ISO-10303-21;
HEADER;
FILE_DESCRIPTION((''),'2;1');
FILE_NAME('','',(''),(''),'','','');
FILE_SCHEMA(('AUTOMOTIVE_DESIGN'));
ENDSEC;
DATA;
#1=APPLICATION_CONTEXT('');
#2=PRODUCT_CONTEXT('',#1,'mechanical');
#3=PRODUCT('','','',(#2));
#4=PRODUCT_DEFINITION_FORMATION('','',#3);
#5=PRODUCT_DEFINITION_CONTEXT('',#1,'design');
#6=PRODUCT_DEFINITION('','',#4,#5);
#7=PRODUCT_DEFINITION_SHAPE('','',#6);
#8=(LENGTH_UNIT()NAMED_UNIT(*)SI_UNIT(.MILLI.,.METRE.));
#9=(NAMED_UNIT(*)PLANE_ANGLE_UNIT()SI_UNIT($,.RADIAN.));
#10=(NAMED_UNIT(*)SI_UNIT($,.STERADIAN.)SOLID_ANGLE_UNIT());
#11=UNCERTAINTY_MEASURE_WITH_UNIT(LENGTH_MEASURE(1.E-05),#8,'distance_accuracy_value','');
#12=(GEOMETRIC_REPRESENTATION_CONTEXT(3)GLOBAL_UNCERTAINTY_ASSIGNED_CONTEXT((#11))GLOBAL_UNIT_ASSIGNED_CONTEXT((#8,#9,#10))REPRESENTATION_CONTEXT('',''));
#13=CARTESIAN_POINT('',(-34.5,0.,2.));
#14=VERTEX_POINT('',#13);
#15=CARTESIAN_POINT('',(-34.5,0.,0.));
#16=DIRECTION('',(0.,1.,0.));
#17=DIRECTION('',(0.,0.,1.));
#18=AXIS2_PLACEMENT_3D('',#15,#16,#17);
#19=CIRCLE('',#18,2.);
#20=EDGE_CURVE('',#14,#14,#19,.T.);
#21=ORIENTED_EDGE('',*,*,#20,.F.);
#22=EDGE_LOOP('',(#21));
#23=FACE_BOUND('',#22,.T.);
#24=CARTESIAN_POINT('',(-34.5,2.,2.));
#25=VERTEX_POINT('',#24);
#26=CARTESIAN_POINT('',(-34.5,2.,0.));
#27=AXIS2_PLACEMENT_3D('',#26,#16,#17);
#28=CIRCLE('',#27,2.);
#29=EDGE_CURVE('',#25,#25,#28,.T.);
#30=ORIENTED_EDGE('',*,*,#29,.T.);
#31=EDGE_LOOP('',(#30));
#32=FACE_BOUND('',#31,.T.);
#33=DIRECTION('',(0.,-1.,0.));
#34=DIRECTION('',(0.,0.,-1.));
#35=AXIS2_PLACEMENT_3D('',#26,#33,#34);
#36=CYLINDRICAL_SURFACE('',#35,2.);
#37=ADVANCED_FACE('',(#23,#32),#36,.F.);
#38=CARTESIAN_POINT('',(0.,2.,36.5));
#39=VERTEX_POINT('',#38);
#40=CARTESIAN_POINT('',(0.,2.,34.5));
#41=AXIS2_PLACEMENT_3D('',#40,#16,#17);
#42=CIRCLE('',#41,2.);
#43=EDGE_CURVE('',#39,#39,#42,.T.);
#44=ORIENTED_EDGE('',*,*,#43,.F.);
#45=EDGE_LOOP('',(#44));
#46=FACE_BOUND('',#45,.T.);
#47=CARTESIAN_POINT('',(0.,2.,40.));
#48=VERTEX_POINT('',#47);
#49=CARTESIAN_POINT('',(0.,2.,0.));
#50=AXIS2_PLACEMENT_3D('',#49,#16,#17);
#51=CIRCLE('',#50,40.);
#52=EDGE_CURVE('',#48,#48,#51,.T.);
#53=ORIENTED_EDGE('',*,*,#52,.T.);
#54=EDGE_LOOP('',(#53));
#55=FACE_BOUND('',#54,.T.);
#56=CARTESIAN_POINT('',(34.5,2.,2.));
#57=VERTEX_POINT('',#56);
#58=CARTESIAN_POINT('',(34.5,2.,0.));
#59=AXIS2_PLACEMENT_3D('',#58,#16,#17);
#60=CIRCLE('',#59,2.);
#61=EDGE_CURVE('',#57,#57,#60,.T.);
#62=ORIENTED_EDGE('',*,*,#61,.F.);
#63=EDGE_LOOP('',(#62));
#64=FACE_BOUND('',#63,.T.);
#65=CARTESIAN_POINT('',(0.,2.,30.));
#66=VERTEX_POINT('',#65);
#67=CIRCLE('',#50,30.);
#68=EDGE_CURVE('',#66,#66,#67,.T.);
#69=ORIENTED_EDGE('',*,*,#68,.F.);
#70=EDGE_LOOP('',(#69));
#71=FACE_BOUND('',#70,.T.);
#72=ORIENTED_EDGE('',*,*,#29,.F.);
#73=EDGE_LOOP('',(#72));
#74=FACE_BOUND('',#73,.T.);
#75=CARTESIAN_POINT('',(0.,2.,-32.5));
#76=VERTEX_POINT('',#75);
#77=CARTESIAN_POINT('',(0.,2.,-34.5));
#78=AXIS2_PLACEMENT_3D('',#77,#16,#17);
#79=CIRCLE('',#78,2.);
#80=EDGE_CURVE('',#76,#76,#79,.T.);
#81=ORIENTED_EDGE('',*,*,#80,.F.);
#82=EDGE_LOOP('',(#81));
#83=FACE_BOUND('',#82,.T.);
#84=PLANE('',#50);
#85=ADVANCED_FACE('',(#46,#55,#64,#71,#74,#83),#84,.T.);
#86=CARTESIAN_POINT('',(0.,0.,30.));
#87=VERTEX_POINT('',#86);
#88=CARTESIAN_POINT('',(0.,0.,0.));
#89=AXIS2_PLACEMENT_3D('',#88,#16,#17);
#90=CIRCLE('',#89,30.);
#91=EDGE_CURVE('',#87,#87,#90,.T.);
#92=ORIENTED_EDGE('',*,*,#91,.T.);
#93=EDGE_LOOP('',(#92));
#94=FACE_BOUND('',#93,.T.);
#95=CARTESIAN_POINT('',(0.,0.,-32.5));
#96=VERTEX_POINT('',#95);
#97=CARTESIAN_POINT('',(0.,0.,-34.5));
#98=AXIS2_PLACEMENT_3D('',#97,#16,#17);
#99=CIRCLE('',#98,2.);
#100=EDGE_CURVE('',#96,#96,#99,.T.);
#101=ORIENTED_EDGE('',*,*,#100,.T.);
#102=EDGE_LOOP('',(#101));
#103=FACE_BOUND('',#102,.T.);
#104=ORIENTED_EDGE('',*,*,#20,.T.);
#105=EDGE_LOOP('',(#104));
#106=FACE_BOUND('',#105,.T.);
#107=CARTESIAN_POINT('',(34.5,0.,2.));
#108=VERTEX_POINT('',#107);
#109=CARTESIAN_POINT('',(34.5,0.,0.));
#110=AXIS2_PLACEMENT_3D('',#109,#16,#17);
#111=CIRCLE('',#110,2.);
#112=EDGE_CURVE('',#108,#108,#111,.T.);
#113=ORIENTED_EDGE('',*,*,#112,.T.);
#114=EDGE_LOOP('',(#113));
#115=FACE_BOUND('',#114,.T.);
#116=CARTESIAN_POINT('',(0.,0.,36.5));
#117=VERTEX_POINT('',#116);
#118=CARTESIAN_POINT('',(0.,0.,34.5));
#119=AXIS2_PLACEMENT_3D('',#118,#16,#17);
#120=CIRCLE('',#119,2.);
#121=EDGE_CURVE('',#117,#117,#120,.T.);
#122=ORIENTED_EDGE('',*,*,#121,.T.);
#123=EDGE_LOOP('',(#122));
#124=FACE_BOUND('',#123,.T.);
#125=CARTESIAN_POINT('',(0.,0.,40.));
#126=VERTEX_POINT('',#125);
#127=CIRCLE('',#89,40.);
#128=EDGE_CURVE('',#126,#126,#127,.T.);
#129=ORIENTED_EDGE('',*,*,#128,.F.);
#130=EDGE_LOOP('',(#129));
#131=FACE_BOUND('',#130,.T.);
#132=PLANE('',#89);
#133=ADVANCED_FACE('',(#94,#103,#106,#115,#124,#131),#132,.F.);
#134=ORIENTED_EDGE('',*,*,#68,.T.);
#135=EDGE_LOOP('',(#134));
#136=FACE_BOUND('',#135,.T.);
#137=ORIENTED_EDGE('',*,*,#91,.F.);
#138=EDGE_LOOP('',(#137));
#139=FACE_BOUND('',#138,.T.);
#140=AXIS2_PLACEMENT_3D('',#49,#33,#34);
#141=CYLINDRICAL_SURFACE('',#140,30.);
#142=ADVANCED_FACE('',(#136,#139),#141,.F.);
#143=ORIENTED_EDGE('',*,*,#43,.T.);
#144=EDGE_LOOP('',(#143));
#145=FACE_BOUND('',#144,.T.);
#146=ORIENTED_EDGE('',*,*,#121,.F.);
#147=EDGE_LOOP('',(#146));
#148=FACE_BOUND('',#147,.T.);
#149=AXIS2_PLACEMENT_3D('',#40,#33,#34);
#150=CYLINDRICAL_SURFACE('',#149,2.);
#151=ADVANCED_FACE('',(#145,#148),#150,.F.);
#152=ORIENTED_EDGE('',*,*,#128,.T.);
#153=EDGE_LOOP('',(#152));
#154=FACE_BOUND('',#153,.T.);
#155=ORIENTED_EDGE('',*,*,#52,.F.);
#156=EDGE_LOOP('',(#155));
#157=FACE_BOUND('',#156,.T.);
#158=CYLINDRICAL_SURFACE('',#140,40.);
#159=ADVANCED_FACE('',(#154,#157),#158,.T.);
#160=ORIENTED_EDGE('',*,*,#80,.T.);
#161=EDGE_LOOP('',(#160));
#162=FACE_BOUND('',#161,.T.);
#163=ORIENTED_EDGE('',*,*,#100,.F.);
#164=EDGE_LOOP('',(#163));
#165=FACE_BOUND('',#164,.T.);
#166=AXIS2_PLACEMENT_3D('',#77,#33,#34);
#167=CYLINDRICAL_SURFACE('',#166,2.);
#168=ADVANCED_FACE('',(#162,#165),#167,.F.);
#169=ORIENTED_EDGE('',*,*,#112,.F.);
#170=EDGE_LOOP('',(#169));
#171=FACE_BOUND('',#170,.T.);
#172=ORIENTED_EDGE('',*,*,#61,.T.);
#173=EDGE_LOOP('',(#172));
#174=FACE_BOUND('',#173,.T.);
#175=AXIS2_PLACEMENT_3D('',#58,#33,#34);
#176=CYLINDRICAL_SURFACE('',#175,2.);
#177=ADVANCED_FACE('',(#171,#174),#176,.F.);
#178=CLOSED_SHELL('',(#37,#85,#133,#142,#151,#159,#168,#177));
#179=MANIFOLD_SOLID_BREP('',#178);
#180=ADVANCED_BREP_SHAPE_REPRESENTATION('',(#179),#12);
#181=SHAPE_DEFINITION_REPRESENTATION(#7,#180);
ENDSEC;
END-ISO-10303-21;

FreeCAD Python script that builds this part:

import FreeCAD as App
import Part
import Sketcher

doc = App.newDocument("Part")
params = doc.addObject("Spreadsheet::Sheet", "Params")
for row, (alias, value) in enumerate([
    ("sketch1_diameter", "80 mm"),
    ("sketch1_diameter2", "4 mm"),
    ("sketch1_diameter3", "60 mm"),
    ("pad1_length", "2 mm"),
], start=1):
    params.set(f"A{row}", alias)
    params.set(f"B{row}", "=" + value)
    params.setAlias(f"B{row}", alias)

body = doc.addObject("PartDesign::Body", "Body")

# Sketch on XZ plane
sketch1 = doc.addObject("Sketcher::SketchObject", "Sketch")
body.addObject(sketch1)
sketch1.AttachmentSupport = (doc.XZ_Plane, [""])
sketch1.MapMode = "FlatFace"
sketch1.addGeometry(Part.Circle(App.Vector(0, 0, 0), App.Vector(0, 0, 1), 40), False)
sketch1.addGeometry(Part.Circle(App.Vector(0, -34.5, 0), App.Vector(0, 0, 1), 2), False)
sketch1.addGeometry(Part.Circle(App.Vector(-34.5, 0, 0), App.Vector(0, 0, 1), 2), False)
sketch1.addGeometry(Part.Circle(App.Vector(34.5, 0, 0), App.Vector(0, 0, 1), 2), False)
sketch1.addGeometry(Part.Circle(App.Vector(0, 0, 0), App.Vector(0, 0, 1), 30), False)
sketch1.addGeometry(Part.Circle(App.Vector(0, 34.5, 0), App.Vector(0, 0, 1), 2), False)
sketch1.addConstraint(Sketcher.Constraint("Coincident", 0, 3, -1, 1))
sketch1.addConstraint(Sketcher.Constraint("Coincident", 4, 3, -1, 1))
sketch1.addConstraint(Sketcher.Constraint("Equal", 1, 2))
sketch1.addConstraint(Sketcher.Constraint("Equal", 2, 3))
sketch1.addConstraint(Sketcher.Constraint("Equal", 3, 5))
sketch1.addConstraint(Sketcher.Constraint("Symmetric", 2, 3, 3, 3, -1, 1))
sketch1.addConstraint(Sketcher.Constraint("Symmetric", 1, 3, 5, 3, -1, 1))
sketch1.addConstraint(Sketcher.Constraint("PointOnObject", 1, 3, -2))
sketch1.addConstraint(Sketcher.Constraint("PointOnObject", 2, 3, -1))
sketch1.addConstraint(Sketcher.Constraint("Diameter", 0, 80.0))
sketch1.addConstraint(Sketcher.Constraint("Diameter", 1, 4.0))
sketch1.addConstraint(Sketcher.Constraint("Diameter", 4, 60.0))
sketch1.addConstraint(Sketcher.Constraint("DistanceX", 2, 3, 3, 3, 69.0))
sketch1.addConstraint(Sketcher.Constraint("DistanceY", 1, 3, 5, 3, 69.0))
sketch1.setExpression("Constraints[9]", "Params.sketch1_diameter")
sketch1.setExpression("Constraints[10]", "Params.sketch1_diameter2")
sketch1.setExpression("Constraints[11]", "Params.sketch1_diameter3")
pad1 = doc.addObject("PartDesign::Pad", "Pad")
body.addObject(pad1)
pad1.Profile = sketch1
pad1.setExpression("Length", "Params.pad1_length")
pad1.Reversed = True

doc.recompute()
